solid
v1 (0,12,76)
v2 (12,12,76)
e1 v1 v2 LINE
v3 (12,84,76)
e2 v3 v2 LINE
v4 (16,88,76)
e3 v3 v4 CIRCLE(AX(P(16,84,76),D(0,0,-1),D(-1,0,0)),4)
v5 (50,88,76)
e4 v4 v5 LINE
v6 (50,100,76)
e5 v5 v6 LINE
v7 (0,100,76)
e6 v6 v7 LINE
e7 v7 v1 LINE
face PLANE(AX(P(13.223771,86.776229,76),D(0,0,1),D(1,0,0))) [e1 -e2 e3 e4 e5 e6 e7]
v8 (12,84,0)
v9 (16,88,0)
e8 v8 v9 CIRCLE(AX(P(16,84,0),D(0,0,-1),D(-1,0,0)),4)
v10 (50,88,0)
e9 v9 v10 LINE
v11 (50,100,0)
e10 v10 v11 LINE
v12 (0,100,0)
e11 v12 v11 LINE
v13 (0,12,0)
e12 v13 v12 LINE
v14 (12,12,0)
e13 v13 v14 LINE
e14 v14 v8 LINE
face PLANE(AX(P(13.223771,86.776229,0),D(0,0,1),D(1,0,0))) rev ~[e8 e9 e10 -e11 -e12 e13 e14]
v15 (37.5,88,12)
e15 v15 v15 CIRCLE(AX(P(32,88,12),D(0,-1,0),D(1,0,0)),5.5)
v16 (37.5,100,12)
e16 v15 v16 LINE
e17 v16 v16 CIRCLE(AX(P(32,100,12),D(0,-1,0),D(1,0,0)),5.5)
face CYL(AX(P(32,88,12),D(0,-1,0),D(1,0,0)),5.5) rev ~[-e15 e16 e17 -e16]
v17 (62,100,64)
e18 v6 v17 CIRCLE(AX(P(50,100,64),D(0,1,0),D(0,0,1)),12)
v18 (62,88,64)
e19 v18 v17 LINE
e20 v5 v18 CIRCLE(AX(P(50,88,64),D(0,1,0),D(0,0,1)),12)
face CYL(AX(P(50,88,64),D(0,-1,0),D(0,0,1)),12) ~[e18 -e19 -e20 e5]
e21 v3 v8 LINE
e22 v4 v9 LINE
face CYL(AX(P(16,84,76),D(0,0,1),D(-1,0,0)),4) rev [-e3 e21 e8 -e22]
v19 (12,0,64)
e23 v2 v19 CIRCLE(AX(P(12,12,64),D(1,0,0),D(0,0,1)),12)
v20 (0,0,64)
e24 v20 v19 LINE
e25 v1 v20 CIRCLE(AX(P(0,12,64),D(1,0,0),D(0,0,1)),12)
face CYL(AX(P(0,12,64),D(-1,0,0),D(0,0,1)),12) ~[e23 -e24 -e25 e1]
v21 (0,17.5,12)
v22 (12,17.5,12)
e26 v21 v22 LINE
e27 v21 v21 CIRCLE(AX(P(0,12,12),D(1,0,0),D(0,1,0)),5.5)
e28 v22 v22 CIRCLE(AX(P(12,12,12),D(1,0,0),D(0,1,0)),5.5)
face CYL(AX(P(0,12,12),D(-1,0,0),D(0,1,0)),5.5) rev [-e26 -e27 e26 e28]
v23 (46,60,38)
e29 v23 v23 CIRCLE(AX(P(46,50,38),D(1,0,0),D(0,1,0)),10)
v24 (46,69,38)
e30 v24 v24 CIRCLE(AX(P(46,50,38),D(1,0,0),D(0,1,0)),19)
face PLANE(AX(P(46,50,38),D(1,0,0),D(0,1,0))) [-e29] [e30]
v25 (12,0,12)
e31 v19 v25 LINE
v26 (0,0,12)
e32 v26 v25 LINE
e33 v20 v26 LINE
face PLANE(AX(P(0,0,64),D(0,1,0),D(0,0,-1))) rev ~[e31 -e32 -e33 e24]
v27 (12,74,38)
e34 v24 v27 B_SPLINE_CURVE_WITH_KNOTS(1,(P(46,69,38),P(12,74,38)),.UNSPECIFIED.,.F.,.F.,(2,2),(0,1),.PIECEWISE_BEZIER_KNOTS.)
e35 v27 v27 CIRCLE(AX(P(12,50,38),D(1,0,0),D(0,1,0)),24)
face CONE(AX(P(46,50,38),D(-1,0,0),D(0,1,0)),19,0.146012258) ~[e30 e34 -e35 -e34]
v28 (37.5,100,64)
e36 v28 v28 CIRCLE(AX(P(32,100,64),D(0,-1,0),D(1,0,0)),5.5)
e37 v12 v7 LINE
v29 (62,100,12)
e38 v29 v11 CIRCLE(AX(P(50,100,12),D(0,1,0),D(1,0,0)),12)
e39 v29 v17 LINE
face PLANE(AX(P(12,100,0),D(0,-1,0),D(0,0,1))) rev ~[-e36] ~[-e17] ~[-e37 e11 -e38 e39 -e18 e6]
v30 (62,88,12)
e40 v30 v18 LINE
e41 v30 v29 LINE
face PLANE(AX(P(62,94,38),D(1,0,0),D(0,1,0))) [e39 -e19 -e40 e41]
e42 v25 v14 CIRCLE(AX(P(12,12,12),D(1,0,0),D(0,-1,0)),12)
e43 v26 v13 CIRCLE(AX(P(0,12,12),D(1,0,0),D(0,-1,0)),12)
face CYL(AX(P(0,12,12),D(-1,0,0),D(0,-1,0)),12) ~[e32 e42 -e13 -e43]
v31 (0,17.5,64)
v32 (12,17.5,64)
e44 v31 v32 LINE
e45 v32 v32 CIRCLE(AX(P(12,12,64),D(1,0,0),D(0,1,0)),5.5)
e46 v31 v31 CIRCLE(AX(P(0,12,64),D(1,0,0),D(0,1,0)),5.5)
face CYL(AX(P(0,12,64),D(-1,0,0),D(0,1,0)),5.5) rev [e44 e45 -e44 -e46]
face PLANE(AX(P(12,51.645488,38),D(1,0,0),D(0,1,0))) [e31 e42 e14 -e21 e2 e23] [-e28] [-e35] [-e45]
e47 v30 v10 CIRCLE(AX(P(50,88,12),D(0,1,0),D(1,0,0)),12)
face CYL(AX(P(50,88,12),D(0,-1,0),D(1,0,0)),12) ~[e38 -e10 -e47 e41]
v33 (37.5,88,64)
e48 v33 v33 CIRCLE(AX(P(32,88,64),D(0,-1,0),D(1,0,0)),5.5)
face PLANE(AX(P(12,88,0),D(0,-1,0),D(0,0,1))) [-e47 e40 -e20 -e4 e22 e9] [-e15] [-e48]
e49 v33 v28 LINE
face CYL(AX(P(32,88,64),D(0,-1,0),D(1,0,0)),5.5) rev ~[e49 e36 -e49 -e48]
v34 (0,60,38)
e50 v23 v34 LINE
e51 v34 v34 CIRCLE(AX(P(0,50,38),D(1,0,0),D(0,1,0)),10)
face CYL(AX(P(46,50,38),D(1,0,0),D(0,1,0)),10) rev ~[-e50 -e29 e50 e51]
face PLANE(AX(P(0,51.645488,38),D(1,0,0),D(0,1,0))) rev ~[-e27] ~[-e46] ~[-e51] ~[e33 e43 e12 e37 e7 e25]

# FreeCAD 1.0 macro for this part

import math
import FreeCAD as App
import Part
import Sketcher

V = App.Vector
Q = App.Units.Quantity


def add_polygon(sketch, points):
    """Adds a closed chain of lines whose ends are joined by coincident constraints."""
    first, n = sketch.GeometryCount, len(points)
    for a, b in zip(points, points[1:] + points[:1]):
        sketch.addGeometry(Part.LineSegment(App.Vector(*a, 0), App.Vector(*b, 0)), False)
    for i in range(n):
        sketch.addConstraint(Sketcher.Constraint("Coincident", first + i, 2, first + (i + 1) % n, 1))

doc = App.newDocument("Part")
body = doc.addObject("PartDesign::Body", "Body")

sketch1 = doc.addObject("Sketcher::SketchObject", "Sketch")
body.addObject(sketch1)
sketch1.AttachmentSupport = (doc.YZ_Plane, [""])
sketch1.MapMode = "FlatFace"
sketch1.addGeometry([
    Part.ArcOfCircle(Part.Circle(V(12, 12, 0), V(0, 0, 1), 12), math.radians(180), math.radians(270)),
    Part.LineSegment(V(12, 0, 0), V(100, 0, 0)),
    Part.LineSegment(V(100, 0, 0), V(100, 76, 0)),
    Part.LineSegment(V(100, 76, 0), V(12, 76, 0)),
    Part.ArcOfCircle(Part.Circle(V(12, 64, 0), V(0, 0, 1), 12), math.radians(90), math.radians(180)),
    Part.LineSegment(V(0, 64, 0), V(0, 12, 0)),
    Part.Circle(V(12, 12, 0), V(0, 0, 1), 6),
    Part.Circle(V(12, 64, 0), V(0, 0, 1), 6),
], False)
sketch1.addConstraint([
    Sketcher.Constraint("Tangent", 0, 2, 1, 1),
    Sketcher.Constraint("Coincident", 1, 2, 2, 1),
    Sketcher.Constraint("Coincident", 2, 2, 3, 1),
    Sketcher.Constraint("Tangent", 3, 2, 4, 1),
    Sketcher.Constraint("Tangent", 4, 2, 5, 1),
    Sketcher.Constraint("Tangent", 5, 2, 0, 1),
    Sketcher.Constraint("Horizontal", 1),
    Sketcher.Constraint("Vertical", 2),
    Sketcher.Constraint("Horizontal", 3),
    Sketcher.Constraint("Vertical", 5),
    Sketcher.Constraint("Coincident", 6, 3, 0, 3),
    Sketcher.Constraint("Coincident", 7, 3, 4, 3),
    Sketcher.Constraint("Equal", 0, 4),
    Sketcher.Constraint("Equal", 6, 7),
    Sketcher.Constraint("PointOnObject", 0, 2, -1),
    Sketcher.Constraint("PointOnObject", 4, 2, -2),
    Sketcher.Constraint("Diameter", 6, Q("11 mm")),
    Sketcher.Constraint("Radius", 0, Q("12 mm")),
    Sketcher.Constraint("DistanceX", 1, 1, 1, 2, Q("88 mm")),
    Sketcher.Constraint("DistanceY", 2, 1, 2, 2, Q("76 mm")),
])
pad1 = doc.addObject("PartDesign::Pad", "Pad")
body.addObject(pad1)
pad1.Profile = sketch1
pad1.Length = 12

sketch2 = doc.addObject("Sketcher::SketchObject", "Sketch001")
body.addObject(sketch2)
sketch2.AttachmentSupport = (doc.YZ_Plane, [""])
sketch2.MapMode = "FlatFace"
sketch2.AttachmentOffset = App.Placement(V(0, 0, 12), App.Rotation())
add_polygon(sketch2, [(88, 76), (88, 0), (100, 0), (100, 76)])
sketch2.addConstraint([
    Sketcher.Constraint("Vertical", 0),
    Sketcher.Constraint("Horizontal", 1),
    Sketcher.Constraint("Vertical", 2),
    Sketcher.Constraint("Horizontal", 3),
    Sketcher.Constraint("PointOnObject", 0, 2, -1),
    Sketcher.Constraint("DistanceX", 1, 1, 1, 2, Q("12 mm")),
    Sketcher.Constraint("DistanceY", 0, 2, 0, 1, Q("76 mm")),
    Sketcher.Constraint("DistanceX", -1, 1, 0, 2, Q("88 mm")),
])
pad2 = doc.addObject("PartDesign::Pad", "Pad001")
body.addObject(pad2)
pad2.Profile = sketch2
pad2.Length = 50

sketch3 = doc.addObject("Sketcher::SketchObject", "Sketch002")
body.addObject(sketch3)
sketch3.AttachmentSupport = (doc.XZ_Plane, [""])
sketch3.MapMode = "FlatFace"
sketch3.AttachmentOffset = App.Placement(V(0, 0, -88), App.Rotation())
sketch3.addGeometry([
    Part.Circle(V(32, 64, 0), V(0, 0, 1), 6),
    Part.Circle(V(32, 12, 0), V(0, 0, 1), 6),
    Part.ArcOfCircle(Part.Circle(V(50, 64, 0), V(0, 0, 1), 12), math.radians(0), math.radians(90)),
    Part.LineSegment(V(62, 64, 0), V(62, 76, 0)),
    Part.LineSegment(V(62, 76, 0), V(50, 76, 0)),
    Part.LineSegment(V(62, 0, 0), V(62, 12, 0)),
    Part.ArcOfCircle(Part.Circle(V(50, 12, 0), V(0, 0, 1), 12), math.radians(-90), math.radians(0)),
    Part.LineSegment(V(50, 0, 0), V(62, 0, 0)),
], False)
sketch3.addConstraint([
    Sketcher.Constraint("Tangent", 2, 1, 3, 1),
    Sketcher.Constraint("Coincident", 3, 2, 4, 1),
    Sketcher.Constraint("Tangent", 4, 2, 2, 2),
    Sketcher.Constraint("Tangent", 5, 2, 6, 2),
    Sketcher.Constraint("Tangent", 6, 1, 7, 1),
    Sketcher.Constraint("Coincident", 7, 2, 5, 1),
    Sketcher.Constraint("Vertical", 3),
    Sketcher.Constraint("Horizontal", 4),
    Sketcher.Constraint("Vertical", 5),
    Sketcher.Constraint("Horizontal", 7),
    Sketcher.Constraint("Equal", 0, 1),
    Sketcher.Constraint("Equal", 2, 6),
    Sketcher.Constraint("PointOnObject", 6, 1, -1),
    Sketcher.Constraint("Horizontal", 0, 3, 2, 3),
    Sketcher.Constraint("Horizontal", 1, 3, 6, 3),
    Sketcher.Constraint("Vertical", 0, 3, 1, 3),
    Sketcher.Constraint("Vertical", 2, 3, 6, 3),
    Sketcher.Constraint("Diameter", 0, Q("11 mm")),
    Sketcher.Constraint("Radius", 2, Q("12 mm")),
    Sketcher.Constraint("DistanceX", -1, 1, 0, 3, Q("32 mm")),
    Sketcher.Constraint("DistanceY", -1, 1, 0, 3, Q("64 mm")),
    Sketcher.Constraint("DistanceX", -1, 1, 2, 3, Q("50 mm")),
])
pocket1 = doc.addObject("PartDesign::Pocket", "Pocket")
body.addObject(pocket1)
pocket1.Profile = sketch3
pocket1.Length = 12

sketch4 = doc.addObject("Sketcher::SketchObject", "Sketch003")
body.addObject(sketch4)
sketch4.AttachmentSupport = (doc.YZ_Plane, [""])
sketch4.MapMode = "FlatFace"
sketch4.AttachmentOffset = App.Placement(V(0, 0, 46), App.Rotation())
sketch4.addGeometry(Part.Circle(V(50, 38, 0), V(0, 0, 1), 19), False)
sketch4.addConstraint([
    Sketcher.Constraint("Diameter", 0, Q("38 mm")),
    Sketcher.Constraint("DistanceX", -1, 1, 0, 3, Q("50 mm")),
    Sketcher.Constraint("DistanceY", -1, 1, 0, 3, Q("38 mm")),
])

sketch5 = doc.addObject("Sketcher::SketchObject", "Sketch004")
body.addObject(sketch5)
sketch5.AttachmentSupport = (doc.YZ_Plane, [""])
sketch5.MapMode = "FlatFace"
sketch5.AttachmentOffset = App.Placement(V(0, 0, 12), App.Rotation())
sketch5.addGeometry(Part.Circle(V(50, 38, 0), V(0, 0, 1), 24), False)
sketch5.addConstraint([
    Sketcher.Constraint("Diameter", 0, Q("48 mm")),
    Sketcher.Constraint("DistanceX", -1, 1, 0, 3, Q("50 mm")),
    Sketcher.Constraint("DistanceY", -1, 1, 0, 3, Q("38 mm")),
])

additiveloft = doc.addObject("PartDesign::AdditiveLoft", "AdditiveLoft")
body.addObject(additiveloft)
additiveloft.Profile = sketch4
additiveloft.Sections = [sketch5]

sketch6 = doc.addObject("Sketcher::SketchObject", "Sketch005")
body.addObject(sketch6)
sketch6.AttachmentSupport = (doc.YZ_Plane, [""])
sketch6.MapMode = "FlatFace"
sketch6.AttachmentOffset = App.Placement(V(0, 0, 46), App.Rotation())
sketch6.addGeometry(Part.Circle(V(50, 38, 0), V(0, 0, 1), 10), False)
sketch6.addConstraint([
    Sketcher.Constraint("Diameter", 0, Q("20 mm")),
    Sketcher.Constraint("DistanceX", -1, 1, 0, 3, Q("50 mm")),
    Sketcher.Constraint("DistanceY", -1, 1, 0, 3, Q("38 mm")),
])
pocket2 = doc.addObject("PartDesign::Pocket", "Pocket001")
body.addObject(pocket2)
pocket2.Profile = sketch6
pocket2.Length = 46

sketch7 = doc.addObject("Sketcher::SketchObject", "Sketch006")
body.addObject(sketch7)
sketch7.AttachmentSupport = (doc.XY_Plane, [""])
sketch7.MapMode = "FlatFace"
sketch7.AttachmentOffset = App.Placement(V(0, 0, 76), App.Rotation())
sketch7.addGeometry([
    Part.ArcOfCircle(Part.Circle(V(16, 84, 0), V(0, 0, 1), 4), math.radians(90), math.radians(180)),
    Part.LineSegment(V(16, 88, 0), V(12, 88, 0)),
    Part.LineSegment(V(12, 88, 0), V(12, 84, 0)),
], False)
sketch7.addConstraint([
    Sketcher.Constraint("Tangent", 0, 1, 1, 1),
    Sketcher.Constraint("Coincident", 1, 2, 2, 1),
    Sketcher.Constraint("Tangent", 2, 2, 0, 2),
    Sketcher.Constraint("Horizontal", 1),
    Sketcher.Constraint("Vertical", 2),
    Sketcher.Constraint("Radius", 0, Q("4 mm")),
    Sketcher.Constraint("DistanceX", -1, 1, 0, 3, Q("16 mm")),
    Sketcher.Constraint("DistanceY", -1, 1, 0, 3, Q("84 mm")),
])
pad3 = doc.addObject("PartDesign::Pad", "Pad002")
body.addObject(pad3)
pad3.Profile = sketch7
pad3.Length = 76
pad3.Reversed = True

doc.recompute()
